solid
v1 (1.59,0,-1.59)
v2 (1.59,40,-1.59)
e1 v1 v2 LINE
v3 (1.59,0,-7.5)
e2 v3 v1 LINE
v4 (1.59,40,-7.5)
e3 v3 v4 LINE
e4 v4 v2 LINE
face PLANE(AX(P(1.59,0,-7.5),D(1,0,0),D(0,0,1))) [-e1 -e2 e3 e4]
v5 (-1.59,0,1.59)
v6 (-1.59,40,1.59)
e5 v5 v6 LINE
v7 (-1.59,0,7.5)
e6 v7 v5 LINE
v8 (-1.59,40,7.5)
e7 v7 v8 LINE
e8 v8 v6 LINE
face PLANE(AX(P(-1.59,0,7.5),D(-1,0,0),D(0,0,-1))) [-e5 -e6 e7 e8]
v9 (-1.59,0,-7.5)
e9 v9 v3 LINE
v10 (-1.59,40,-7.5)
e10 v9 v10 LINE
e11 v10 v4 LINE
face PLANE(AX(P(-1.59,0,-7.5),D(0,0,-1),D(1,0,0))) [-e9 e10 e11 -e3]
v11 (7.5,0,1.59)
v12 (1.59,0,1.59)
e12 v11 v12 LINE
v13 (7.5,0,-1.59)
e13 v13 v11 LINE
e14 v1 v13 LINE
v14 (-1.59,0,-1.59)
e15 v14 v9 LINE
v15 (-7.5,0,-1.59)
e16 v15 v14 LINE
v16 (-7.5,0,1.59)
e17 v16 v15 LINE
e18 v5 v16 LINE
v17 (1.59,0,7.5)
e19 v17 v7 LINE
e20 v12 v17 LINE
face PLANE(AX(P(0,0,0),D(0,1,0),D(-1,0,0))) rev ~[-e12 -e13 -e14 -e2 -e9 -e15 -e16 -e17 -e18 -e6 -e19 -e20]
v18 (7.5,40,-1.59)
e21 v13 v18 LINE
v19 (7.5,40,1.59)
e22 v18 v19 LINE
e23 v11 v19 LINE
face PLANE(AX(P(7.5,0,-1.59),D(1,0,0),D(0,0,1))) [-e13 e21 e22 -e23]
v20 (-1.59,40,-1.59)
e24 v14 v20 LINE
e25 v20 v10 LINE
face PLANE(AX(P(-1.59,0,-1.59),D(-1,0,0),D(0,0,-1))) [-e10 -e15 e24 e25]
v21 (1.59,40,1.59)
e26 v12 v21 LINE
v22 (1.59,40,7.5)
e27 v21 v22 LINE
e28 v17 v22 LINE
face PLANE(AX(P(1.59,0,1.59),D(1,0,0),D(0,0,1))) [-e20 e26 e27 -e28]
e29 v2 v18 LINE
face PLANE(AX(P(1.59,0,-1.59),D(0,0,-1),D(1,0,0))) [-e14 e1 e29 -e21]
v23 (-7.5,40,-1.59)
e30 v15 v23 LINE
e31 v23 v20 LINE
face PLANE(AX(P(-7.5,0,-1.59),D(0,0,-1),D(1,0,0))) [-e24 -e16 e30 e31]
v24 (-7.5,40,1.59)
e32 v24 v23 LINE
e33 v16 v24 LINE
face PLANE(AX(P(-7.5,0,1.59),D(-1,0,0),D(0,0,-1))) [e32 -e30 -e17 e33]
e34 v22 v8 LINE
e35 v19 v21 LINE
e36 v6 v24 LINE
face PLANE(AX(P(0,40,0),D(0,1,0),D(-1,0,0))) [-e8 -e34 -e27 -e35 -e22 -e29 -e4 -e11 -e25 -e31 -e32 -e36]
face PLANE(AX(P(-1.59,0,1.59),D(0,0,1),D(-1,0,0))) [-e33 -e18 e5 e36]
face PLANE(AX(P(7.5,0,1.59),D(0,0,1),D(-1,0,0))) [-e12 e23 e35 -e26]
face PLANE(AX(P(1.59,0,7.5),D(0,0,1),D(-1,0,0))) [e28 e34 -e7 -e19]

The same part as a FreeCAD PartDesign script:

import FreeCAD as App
import Part
import Sketcher

V = App.Vector
Q = App.Units.Quantity


def add_polygon(sketch, points):
    """Adds a closed chain of lines whose ends are joined by coincident constraints."""
    first, n = sketch.GeometryCount, len(points)
    for a, b in zip(points, points[1:] + points[:1]):
        sketch.addGeometry(Part.LineSegment(App.Vector(*a, 0), App.Vector(*b, 0)), False)
    for i in range(n):
        sketch.addConstraint(Sketcher.Constraint("Coincident", first + i, 2, first + (i + 1) % n, 1))

doc = App.newDocument("Part")
body = doc.addObject("PartDesign::Body", "Body")

sketch1 = body.newObject("Sketcher::SketchObject", "Sketch")
sketch1.AttachmentSupport = (doc.getObject("XZ_Plane"), [""])
sketch1.MapMode = "FlatFace"
add_polygon(sketch1, [(1.6, 1.6), (7.5, 1.6), (7.5, -1.6), (1.6, -1.6), (1.6, -7.5), (-1.6, -7.5), (-1.6, -1.6), (-7.5, -1.6), (-7.5, 1.6), (-1.6, 1.6), (-1.6, 7.5), (1.6, 7.5)])
sketch1.addConstraint([
    Sketcher.Constraint("Horizontal", 0),
    Sketcher.Constraint("Vertical", 1),
    Sketcher.Constraint("Horizontal", 2),
    Sketcher.Constraint("Vertical", 3),
    Sketcher.Constraint("Horizontal", 4),
    Sketcher.Constraint("Vertical", 5),
    Sketcher.Constraint("Horizontal", 6),
    Sketcher.Constraint("Vertical", 7),
    Sketcher.Constraint("Horizontal", 8),
    Sketcher.Constraint("Vertical", 9),
    Sketcher.Constraint("Horizontal", 10),
    Sketcher.Constraint("Vertical", 11),
    Sketcher.Constraint("Symmetric", 0, 2, 6, 2, -1, 1),
    Sketcher.Constraint("Symmetric", 2, 2, 8, 2, -1, 1),
    Sketcher.Constraint("Symmetric", 4, 2, 10, 2, -1, 1),
    Sketcher.Constraint("Symmetric", 2, 2, 5, 2, -2),
    Sketcher.Constraint("Equal", 10, 1),
    Sketcher.Constraint("Equal", 8, 3),
    Sketcher.Constraint("DistanceX", 6, 2, 1, 2, Q("15 mm")),
    Sketcher.Constraint("DistanceX", 4, 2, 4, 1, Q("3.18 mm")),
])
pad1 = body.newObject("PartDesign::Pad", "Pad")
pad1.Profile = sketch1
pad1.Length = 40
pad1.Reversed = True

doc.recompute()
